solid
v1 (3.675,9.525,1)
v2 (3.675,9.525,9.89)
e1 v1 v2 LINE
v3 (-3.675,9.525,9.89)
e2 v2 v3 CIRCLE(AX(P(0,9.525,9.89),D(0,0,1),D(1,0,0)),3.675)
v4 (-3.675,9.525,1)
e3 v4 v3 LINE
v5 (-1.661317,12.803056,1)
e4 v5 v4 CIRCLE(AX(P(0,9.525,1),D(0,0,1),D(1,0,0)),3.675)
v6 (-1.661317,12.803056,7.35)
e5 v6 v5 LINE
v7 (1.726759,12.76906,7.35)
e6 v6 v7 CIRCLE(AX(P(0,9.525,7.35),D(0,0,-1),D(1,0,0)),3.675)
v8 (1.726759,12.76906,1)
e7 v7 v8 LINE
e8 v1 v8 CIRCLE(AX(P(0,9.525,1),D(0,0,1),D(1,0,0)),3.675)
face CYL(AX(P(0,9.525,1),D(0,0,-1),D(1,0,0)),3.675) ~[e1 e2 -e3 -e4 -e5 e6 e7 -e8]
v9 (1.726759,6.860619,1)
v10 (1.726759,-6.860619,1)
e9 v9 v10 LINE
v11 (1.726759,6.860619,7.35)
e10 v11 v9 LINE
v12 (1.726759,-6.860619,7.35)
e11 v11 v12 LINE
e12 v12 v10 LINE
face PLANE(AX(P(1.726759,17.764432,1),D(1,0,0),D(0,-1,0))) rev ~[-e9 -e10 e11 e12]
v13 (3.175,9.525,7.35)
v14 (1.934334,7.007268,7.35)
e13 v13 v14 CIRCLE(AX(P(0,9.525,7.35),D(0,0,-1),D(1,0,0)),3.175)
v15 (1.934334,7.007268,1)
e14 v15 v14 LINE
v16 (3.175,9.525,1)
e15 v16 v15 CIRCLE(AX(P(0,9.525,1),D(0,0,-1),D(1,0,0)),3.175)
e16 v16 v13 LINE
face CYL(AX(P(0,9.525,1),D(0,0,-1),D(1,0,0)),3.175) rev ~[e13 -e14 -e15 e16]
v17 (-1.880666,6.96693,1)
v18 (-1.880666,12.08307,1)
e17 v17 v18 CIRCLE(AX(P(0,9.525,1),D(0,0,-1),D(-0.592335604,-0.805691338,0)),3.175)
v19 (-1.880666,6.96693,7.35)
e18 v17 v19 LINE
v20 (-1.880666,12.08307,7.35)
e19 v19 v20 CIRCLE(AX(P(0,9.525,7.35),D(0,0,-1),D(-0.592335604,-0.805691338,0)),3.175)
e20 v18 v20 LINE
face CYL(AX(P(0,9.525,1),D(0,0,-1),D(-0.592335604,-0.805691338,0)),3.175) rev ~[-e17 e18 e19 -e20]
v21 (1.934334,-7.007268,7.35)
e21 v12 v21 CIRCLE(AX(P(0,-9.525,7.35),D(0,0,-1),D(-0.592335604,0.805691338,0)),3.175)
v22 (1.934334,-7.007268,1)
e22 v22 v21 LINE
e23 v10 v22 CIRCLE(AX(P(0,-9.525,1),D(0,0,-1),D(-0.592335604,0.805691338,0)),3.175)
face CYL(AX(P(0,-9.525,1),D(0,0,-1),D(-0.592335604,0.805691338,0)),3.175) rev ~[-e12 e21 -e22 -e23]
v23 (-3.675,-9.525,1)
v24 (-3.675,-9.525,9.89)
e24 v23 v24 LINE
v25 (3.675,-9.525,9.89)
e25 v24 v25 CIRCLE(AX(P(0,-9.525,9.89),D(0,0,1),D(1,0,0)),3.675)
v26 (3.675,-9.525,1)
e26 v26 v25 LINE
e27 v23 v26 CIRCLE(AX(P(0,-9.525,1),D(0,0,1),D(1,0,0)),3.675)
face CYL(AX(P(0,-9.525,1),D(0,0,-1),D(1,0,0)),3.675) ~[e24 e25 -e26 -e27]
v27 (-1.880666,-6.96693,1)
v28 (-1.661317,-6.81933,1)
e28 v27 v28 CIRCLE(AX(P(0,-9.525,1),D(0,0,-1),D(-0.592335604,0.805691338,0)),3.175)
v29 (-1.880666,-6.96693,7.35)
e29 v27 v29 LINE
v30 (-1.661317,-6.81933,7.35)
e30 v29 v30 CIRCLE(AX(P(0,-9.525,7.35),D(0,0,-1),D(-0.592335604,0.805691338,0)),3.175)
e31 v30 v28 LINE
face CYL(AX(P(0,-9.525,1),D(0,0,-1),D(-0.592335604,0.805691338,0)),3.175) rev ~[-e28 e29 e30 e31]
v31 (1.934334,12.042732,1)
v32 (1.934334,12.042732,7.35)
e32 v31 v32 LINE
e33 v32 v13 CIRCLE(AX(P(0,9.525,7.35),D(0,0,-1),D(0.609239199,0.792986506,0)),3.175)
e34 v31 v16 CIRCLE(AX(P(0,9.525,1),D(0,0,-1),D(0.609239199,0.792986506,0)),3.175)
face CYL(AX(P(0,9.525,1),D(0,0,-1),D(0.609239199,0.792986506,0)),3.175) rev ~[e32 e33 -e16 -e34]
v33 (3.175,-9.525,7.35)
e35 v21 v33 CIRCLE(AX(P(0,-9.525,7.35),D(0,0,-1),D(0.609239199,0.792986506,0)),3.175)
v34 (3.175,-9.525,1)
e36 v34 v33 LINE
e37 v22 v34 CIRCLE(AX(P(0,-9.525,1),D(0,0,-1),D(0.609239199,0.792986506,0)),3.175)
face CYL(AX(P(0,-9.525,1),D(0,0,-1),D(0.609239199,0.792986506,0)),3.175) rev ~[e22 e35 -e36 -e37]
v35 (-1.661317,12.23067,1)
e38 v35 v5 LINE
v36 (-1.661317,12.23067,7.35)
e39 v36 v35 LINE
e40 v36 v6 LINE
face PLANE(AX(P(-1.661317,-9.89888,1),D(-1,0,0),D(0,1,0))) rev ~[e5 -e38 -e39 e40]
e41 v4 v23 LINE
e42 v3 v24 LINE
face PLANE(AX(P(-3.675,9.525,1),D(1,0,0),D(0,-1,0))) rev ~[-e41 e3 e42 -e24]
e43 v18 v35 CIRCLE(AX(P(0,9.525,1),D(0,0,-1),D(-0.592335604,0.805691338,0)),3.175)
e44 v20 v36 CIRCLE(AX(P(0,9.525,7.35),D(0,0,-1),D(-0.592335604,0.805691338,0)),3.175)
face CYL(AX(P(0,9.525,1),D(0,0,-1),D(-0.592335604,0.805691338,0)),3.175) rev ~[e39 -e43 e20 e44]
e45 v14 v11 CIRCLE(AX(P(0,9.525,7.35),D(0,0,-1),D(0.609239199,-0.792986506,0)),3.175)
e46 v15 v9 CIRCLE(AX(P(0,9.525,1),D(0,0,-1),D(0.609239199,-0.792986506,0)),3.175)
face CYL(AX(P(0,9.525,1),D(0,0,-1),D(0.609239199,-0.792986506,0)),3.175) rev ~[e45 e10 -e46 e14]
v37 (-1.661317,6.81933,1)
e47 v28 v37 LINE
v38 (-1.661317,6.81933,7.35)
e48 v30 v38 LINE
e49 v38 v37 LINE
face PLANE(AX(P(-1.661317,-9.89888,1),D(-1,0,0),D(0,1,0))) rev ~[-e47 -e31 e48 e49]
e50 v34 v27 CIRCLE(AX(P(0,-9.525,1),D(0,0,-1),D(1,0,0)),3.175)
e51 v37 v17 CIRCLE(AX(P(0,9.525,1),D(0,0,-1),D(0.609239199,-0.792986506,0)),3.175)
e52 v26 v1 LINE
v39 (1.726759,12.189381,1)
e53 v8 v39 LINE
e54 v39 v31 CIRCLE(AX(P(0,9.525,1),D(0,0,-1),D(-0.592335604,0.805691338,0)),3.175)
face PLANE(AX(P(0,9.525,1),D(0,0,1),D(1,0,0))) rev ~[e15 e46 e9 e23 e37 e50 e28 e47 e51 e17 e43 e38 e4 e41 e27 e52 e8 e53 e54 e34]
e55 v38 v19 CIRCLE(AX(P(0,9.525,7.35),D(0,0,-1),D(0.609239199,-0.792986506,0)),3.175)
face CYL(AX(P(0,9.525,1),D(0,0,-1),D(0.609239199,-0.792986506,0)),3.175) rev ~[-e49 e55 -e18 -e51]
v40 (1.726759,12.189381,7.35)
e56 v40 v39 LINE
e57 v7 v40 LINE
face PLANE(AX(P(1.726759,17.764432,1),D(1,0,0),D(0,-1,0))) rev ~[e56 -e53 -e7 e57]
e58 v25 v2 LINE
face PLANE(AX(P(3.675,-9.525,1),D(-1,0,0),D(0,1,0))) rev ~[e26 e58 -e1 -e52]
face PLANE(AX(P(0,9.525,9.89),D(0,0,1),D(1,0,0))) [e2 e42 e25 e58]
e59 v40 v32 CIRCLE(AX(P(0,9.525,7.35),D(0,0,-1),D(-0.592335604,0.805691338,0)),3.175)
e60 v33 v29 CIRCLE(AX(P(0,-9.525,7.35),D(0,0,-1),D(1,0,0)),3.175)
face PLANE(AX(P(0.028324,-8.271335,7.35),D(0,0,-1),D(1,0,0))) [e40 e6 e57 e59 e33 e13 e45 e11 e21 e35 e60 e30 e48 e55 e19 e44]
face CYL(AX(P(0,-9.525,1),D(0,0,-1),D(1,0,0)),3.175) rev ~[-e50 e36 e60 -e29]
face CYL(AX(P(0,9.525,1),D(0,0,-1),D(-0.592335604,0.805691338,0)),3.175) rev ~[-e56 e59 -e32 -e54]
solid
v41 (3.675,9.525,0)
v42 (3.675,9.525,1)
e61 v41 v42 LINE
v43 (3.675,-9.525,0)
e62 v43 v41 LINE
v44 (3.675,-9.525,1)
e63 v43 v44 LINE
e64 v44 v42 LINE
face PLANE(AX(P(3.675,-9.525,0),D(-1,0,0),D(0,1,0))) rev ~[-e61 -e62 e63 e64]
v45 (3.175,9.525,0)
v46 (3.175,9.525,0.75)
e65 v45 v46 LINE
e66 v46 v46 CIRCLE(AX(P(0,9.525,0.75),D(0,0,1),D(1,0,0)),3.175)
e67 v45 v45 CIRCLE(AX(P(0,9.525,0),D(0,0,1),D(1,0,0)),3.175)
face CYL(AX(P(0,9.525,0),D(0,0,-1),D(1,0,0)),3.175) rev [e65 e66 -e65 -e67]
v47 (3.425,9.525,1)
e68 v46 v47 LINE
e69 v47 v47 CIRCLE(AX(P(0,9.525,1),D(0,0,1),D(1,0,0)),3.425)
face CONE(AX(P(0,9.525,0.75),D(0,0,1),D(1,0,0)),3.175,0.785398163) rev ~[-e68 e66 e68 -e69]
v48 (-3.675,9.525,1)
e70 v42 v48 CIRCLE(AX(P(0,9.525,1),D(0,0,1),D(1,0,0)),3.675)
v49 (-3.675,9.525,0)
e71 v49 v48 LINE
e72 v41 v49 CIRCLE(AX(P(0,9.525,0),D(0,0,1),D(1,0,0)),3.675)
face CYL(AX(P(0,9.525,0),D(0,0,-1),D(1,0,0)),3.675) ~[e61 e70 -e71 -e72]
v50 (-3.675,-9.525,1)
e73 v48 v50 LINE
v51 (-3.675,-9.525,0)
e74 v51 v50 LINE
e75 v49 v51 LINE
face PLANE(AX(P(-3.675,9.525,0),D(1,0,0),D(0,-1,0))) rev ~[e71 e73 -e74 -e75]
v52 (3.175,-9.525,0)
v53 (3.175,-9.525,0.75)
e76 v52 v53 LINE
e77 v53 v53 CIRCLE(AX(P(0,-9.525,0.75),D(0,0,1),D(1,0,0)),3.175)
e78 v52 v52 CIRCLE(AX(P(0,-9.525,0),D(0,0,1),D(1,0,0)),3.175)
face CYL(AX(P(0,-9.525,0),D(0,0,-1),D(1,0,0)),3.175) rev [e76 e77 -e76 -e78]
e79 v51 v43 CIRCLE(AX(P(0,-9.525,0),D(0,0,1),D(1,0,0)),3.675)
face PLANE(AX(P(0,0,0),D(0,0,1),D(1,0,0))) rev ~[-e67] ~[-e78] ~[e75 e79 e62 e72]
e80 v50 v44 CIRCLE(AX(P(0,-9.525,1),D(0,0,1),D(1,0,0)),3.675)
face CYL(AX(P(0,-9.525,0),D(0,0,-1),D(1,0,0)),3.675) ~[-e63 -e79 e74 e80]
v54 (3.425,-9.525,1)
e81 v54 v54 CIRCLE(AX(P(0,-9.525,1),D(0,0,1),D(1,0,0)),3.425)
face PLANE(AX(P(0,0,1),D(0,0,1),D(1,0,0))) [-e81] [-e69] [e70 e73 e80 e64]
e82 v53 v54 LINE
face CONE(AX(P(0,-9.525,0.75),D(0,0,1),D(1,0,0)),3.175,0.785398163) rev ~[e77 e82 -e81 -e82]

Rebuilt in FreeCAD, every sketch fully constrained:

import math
import FreeCAD as App
import Part
import Sketcher

V = App.Vector
Q = App.Units.Quantity


def edges_at(feature, points):
    """Names of the edges that pass closest to the given points."""
    edges = feature.Shape.Edges
    near = lambda p: min(range(len(edges)), key=lambda i: edges[i].distToShape(Part.Vertex(*p))[0])
    return sorted({f"Edge{near(p) + 1}" for p in points})


def add_polygon(sketch, points):
    """Adds a closed chain of lines whose ends are joined by coincident constraints."""
    first, n = sketch.GeometryCount, len(points)
    for a, b in zip(points, points[1:] + points[:1]):
        sketch.addGeometry(Part.LineSegment(App.Vector(*a, 0), App.Vector(*b, 0)), False)
    for i in range(n):
        sketch.addConstraint(Sketcher.Constraint("Coincident", first + i, 2, first + (i + 1) % n, 1))

doc = App.newDocument("Part")
params = doc.addObject("Spreadsheet::Sheet", "Params")
for row, (alias, value) in enumerate([
    ("sketch1_diameter", "0.25 in"),
    ("sketch1_height", "0.75 in"),
    ("pad1_length", "1 mm"),
    ("chamfer_size", "0.25 mm"),
    ("sketch2_height", "0.75 in"),
    ("pad2_length", "0.35 in"),
    ("sketch3_radius", "0.125 in"),
    ("pocket1_length", "0.25 in"),
    ("pocket2_length", "0.25 in"),
], start=1):
    params.set(f"A{row}", alias)
    params.set(f"B{row}", "=" + value)
    params.setAlias(f"B{row}", alias)

body = doc.addObject("PartDesign::Body", "Body")

# Sketch on XY plane
sketch1 = body.newObject("Sketcher::SketchObject", "Sketch")
sketch1.AttachmentSupport = (doc.getObject("XY_Plane"), [""])
sketch1.MapMode = "FlatFace"
sketch1.addGeometry([
    Part.LineSegment(V(3.7, -9.5, 0), V(3.7, 9.5, 0)),  # 0
    Part.ArcOfCircle(Part.Circle(V(0, 9.5, 0), V(0, 0, 1), 3.7), math.radians(0), math.radians(180)),  # 1
    Part.LineSegment(V(-3.7, 9.5, 0), V(-3.7, -9.5, 0)),  # 2
    Part.ArcOfCircle(Part.Circle(V(0, -9.5, 0), V(0, 0, 1), 3.7), math.radians(180), math.radians(360)),  # 3
    Part.Circle(V(0, -9.5, 0), V(0, 0, 1), 3.2),  # 4
    Part.Circle(V(0, 9.5, 0), V(0, 0, 1), 3.2),  # 5
], False)
sketch1.addConstraint([
    Sketcher.Constraint("Tangent", 0, 2, 1, 1),
    Sketcher.Constraint("Tangent", 1, 2, 2, 1),
    Sketcher.Constraint("Tangent", 2, 2, 3, 1),
    Sketcher.Constraint("Tangent", 3, 2, 0, 1),
    Sketcher.Constraint("Vertical", 0),
    Sketcher.Constraint("Vertical", 2),
    Sketcher.Constraint("Coincident", 4, 3, 3, 3),
    Sketcher.Constraint("Coincident", 5, 3, 1, 3),
    Sketcher.Constraint("Equal", 4, 5),
    Sketcher.Constraint("Symmetric", 1, 3, 3, 3, -1, 1),
    Sketcher.Constraint("Diameter", 4, Q("0.25 in")),
    Sketcher.Constraint("DistanceY", 0, 1, 0, 2, Q("0.75 in")),
    Sketcher.Constraint("Radius", 1, 3.675),
])
sketch1.setExpression("Constraints[10]", "Params.sketch1_diameter")
sketch1.setExpression("Constraints[11]", "Params.sketch1_height")
pad1 = body.newObject("PartDesign::Pad", "Pad")
pad1.Profile = sketch1
pad1.setExpression("Length", "Params.pad1_length")
doc.recompute()

chamfer = body.newObject("PartDesign::Chamfer", "Chamfer")
chamfer.Base = (pad1, edges_at(pad1, [(-3.175, -9.525, 1), (-3.175, 9.525, 1)]))
chamfer.setExpression("Size", "Params.chamfer_size")
body2 = doc.addObject("PartDesign::Body", "Body001")

# Sketch on XY plane
sketch2 = body2.newObject("Sketcher::SketchObject", "Sketch001")
sketch2.AttachmentSupport = (doc.getObject("XY_Plane001"), [""])
sketch2.MapMode = "FlatFace"
sketch2.addGeometry([
    Part.ArcOfCircle(Part.Circle(V(0, 9.5, 0), V(0, 0, 1), 3.7), math.radians(0), math.radians(180)),
    Part.LineSegment(V(-3.7, 9.5, 0), V(-3.7, -9.5, 0)),
    Part.ArcOfCircle(Part.Circle(V(0, -9.5, 0), V(0, 0, 1), 3.7), math.radians(180), math.radians(360)),
    Part.LineSegment(V(3.7, -9.5, 0), V(3.7, 9.5, 0)),
], False)
sketch2.addConstraint([
    Sketcher.Constraint("Tangent", 0, 2, 1, 1),
    Sketcher.Constraint("Tangent", 1, 2, 2, 1),
    Sketcher.Constraint("Tangent", 2, 2, 3, 1),
    Sketcher.Constraint("Tangent", 3, 2, 0, 1),
    Sketcher.Constraint("Vertical", 1),
    Sketcher.Constraint("Vertical", 3),
    Sketcher.Constraint("Symmetric", 0, 3, 2, 3, -1, 1),
    Sketcher.Constraint("DistanceY", 1, 2, 1, 1, Q("0.75 in")),
    Sketcher.Constraint("Radius", 0, 3.675),
])
sketch2.setExpression("Constraints[7]", "Params.sketch2_height")
pad2 = body2.newObject("PartDesign::Pad", "Pad001")
pad2.Profile = sketch2
pad2.setExpression("Length", "Params.pad2_length")
body3 = doc.addObject("PartDesign::Body", "Body002")
doc.recompute()

body2.Placement = App.Placement(V(0, 0, 1), App.Rotation(V(0, 0, 1), 0))
boolean = body3.newObject("PartDesign::Boolean", "Boolean")
boolean.Type = "Fuse"
boolean.addObjects([body2])

# Sketch on XY plane
sketch3 = body3.newObject("Sketcher::SketchObject", "Sketch002")
sketch3.AttachmentSupport = (doc.getObject("XY_Plane002"), [""])
sketch3.MapMode = "FlatFace"
sketch3.AttachmentOffset = App.Placement(V(0, 0, 1), App.Rotation())
sketch3.addGeometry([
    Part.ArcOfCircle(Part.Circle(V(0, -9.5, 0), V(0, 0, 1), 3.2), math.radians(52), math.radians(126)),  # 0
    Part.ArcOfCircle(Part.Circle(V(0, -9.5, 0), V(0, 0, 1), 3.2), math.radians(0), math.radians(52)),  # 1
    Part.ArcOfCircle(Part.Circle(V(0, -9.5, 0), V(0, 0, 1), 3.2), math.radians(126), math.radians(360)),  # 2
    Part.ArcOfCircle(Part.Circle(V(0, 9.5, 0), V(0, 0, 1), 3.2), math.radians(-126), math.radians(-52)),  # 3
    Part.ArcOfCircle(Part.Circle(V(0, 9.5, 0), V(0, 0, 1), 3.2), math.radians(126), math.radians(234)),  # 4
    Part.ArcOfCircle(Part.Circle(V(0, 9.5, 0), V(0, 0, 1), 3.2), math.radians(52), math.radians(126)),  # 5
    Part.ArcOfCircle(Part.Circle(V(0, 9.5, 0), V(0, 0, 1), 3.2), math.radians(0), math.radians(52)),  # 6
    Part.ArcOfCircle(Part.Circle(V(0, 9.5, 0), V(0, 0, 1), 3.2), math.radians(-52), math.radians(0)),  # 7
], False)
sketch3.addConstraint([
    Sketcher.Constraint("Tangent", 0, 1, 1, 2),
    Sketcher.Constraint("Tangent", 1, 1, 2, 2),
    Sketcher.Constraint("Tangent", 2, 1, 0, 2),
    Sketcher.Constraint("Tangent", 3, 1, 4, 2),
    Sketcher.Constraint("Tangent", 4, 1, 5, 2),
    Sketcher.Constraint("Tangent", 5, 1, 6, 2),
    Sketcher.Constraint("Tangent", 6, 1, 7, 2),
    Sketcher.Constraint("Tangent", 7, 1, 3, 2),
    Sketcher.Constraint("Coincident", 5, 3, 3, 3),
    Sketcher.Constraint("Equal", 2, 3),
    Sketcher.Constraint("Symmetric", 0, 3, 3, 3, -1, 1),
    Sketcher.Constraint("Symmetric", 2, 1, 3, 1, -1),
    Sketcher.Constraint("Horizontal", 2, 3, 1, 1),
    Sketcher.Constraint("Horizontal", 7, 3, 6, 1),
    Sketcher.Constraint("Vertical", 3, 1, 4, 1),
    Sketcher.Constraint("Vertical", 0, 1, 5, 1),
    Sketcher.Constraint("Vertical", 5, 1, 7, 1),
    Sketcher.Constraint("Radius", 0, Q("0.125 in")),
    Sketcher.Constraint("DistanceY", 0, 3, 3, 3, Q("0.75 in")),
    Sketcher.Constraint("DistanceX", 2, 1, 0, 1, 3.815),
    Sketcher.Constraint("DistanceY", 2, 1, -1, 1, 6.96693),
])
sketch3.setExpression("Constraints[17]", "Params.sketch3_radius")
pocket1 = body3.newObject("PartDesign::Pocket", "Pocket")
pocket1.Profile = sketch3
pocket1.setExpression("Length", "Params.pocket1_length")
pocket1.Reversed = True

# Sketch on XY plane
sketch4 = body3.newObject("Sketcher::SketchObject", "Sketch003")
sketch4.AttachmentSupport = (doc.getObject("XY_Plane002"), [""])
sketch4.MapMode = "FlatFace"
sketch4.AttachmentOffset = App.Placement(V(0, 0, 1), App.Rotation())
add_polygon(sketch4, [(1.7, -9.9), (-1.7, -9.9), (-1.7, 17.8), (1.7, 17.8)])  # lines 0-3
sketch4.addConstraint([
    Sketcher.Constraint("Horizontal", 0),
    Sketcher.Constraint("Vertical", 1),
    Sketcher.Constraint("Horizontal", 2),
    Sketcher.Constraint("Vertical", 3),
    Sketcher.Constraint("DistanceY", 1, 1, 1, 2, 27.663312),
    Sketcher.Constraint("DistanceX", 0, 2, 0, 1, 3.388076),
    Sketcher.Constraint("DistanceY", 0, 2, -1, 1, 9.89888),
    Sketcher.Constraint("DistanceX", -1, 1, 2, 2, 1.726759),
])
pocket2 = body3.newObject("PartDesign::Pocket", "Pocket001")
pocket2.Profile = sketch4
pocket2.setExpression("Length", "Params.pocket2_length")
pocket2.Reversed = True

doc.recompute()
